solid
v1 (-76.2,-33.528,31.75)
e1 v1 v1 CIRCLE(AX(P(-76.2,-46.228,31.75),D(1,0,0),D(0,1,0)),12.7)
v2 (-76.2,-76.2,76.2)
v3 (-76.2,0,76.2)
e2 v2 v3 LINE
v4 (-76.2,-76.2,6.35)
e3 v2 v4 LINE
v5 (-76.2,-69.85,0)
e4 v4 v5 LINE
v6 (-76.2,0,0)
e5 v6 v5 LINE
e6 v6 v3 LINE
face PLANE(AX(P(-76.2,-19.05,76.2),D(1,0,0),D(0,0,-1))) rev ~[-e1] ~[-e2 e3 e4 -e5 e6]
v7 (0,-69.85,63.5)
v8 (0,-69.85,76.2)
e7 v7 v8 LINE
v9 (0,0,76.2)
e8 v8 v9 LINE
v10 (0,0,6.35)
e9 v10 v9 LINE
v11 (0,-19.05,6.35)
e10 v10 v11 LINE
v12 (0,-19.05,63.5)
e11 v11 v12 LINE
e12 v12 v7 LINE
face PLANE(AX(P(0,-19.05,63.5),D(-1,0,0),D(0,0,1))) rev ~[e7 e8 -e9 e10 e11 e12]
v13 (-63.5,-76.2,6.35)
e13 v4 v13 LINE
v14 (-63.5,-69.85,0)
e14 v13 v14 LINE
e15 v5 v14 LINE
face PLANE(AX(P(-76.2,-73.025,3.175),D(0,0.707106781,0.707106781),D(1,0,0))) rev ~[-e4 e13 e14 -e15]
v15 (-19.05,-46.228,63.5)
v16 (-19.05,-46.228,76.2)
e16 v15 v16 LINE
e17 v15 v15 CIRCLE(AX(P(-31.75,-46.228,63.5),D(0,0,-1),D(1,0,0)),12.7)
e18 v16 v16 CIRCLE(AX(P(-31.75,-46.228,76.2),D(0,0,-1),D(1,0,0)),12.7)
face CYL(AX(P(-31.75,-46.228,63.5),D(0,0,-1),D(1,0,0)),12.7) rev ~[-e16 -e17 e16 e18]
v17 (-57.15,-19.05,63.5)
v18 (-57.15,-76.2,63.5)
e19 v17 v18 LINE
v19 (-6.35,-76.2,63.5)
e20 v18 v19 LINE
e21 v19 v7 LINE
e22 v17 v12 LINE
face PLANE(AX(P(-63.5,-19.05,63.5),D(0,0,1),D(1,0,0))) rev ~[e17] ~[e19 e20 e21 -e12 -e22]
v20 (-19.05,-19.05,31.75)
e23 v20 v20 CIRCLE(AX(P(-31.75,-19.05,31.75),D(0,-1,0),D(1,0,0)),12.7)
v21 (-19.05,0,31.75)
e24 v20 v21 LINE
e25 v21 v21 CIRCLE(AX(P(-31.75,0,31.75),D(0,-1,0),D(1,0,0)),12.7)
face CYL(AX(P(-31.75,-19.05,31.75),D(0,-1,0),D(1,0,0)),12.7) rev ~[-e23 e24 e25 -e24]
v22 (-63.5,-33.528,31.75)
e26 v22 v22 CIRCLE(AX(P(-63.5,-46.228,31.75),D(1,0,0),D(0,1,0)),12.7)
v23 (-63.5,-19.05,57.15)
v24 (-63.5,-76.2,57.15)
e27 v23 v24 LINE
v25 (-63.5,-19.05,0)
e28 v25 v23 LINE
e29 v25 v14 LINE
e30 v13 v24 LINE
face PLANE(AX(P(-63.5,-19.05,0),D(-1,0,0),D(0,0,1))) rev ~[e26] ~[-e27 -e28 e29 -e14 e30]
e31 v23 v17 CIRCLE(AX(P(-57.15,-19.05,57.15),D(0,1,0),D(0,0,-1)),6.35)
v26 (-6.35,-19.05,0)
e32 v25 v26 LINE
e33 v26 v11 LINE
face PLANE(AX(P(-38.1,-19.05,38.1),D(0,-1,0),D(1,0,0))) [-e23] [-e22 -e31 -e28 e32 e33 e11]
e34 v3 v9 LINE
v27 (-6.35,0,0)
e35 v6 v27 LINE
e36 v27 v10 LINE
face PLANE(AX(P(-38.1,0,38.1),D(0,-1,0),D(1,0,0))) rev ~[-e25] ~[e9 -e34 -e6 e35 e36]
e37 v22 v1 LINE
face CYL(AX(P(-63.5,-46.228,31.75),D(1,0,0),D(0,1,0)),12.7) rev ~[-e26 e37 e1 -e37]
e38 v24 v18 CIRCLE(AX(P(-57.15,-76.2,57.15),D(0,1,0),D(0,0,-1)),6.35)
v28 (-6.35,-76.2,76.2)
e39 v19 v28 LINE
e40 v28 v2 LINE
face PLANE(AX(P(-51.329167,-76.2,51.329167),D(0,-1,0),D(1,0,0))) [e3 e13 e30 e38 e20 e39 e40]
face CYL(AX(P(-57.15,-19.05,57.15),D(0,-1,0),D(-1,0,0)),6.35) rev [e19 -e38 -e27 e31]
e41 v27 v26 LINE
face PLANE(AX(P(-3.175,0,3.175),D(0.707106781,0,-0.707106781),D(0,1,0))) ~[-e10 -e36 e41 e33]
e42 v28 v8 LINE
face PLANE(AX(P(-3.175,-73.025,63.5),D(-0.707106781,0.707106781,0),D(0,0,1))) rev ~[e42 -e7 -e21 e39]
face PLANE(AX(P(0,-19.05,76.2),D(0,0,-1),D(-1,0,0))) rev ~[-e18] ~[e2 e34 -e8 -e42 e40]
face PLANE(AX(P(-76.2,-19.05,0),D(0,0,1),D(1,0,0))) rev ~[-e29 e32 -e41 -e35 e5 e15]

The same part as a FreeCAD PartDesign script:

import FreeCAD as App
import Part
import Sketcher
from FreeCAD import Vector
Q = App.Units.Quantity


def edges_at(feature, points):
    """Names of the edges that pass closest to the given points."""
    edges = feature.Shape.Edges
    near = lambda p: min(range(len(edges)), key=lambda i: edges[i].distToShape(Part.Vertex(*p))[0])
    return sorted({f"Edge{near(p) + 1}" for p in points})

doc = App.newDocument("Part")
body = doc.addObject("PartDesign::Body", "Body")

sketch1 = body.newObject("Sketcher::SketchObject", "Sketch")
sketch1.AttachmentSupport = (doc.getObject("XZ_Plane"), [""])
sketch1.MapMode = "FlatFace"
sketch1.addGeometry(Part.LineSegment(Vector(-76.2, 76.2, 0), Vector(-76.2, 0, 0)), False)
sketch1.addGeometry(Part.LineSegment(Vector(-76.2, 0, 0), Vector(0, 0, 0)), False)
sketch1.addGeometry(Part.LineSegment(Vector(0, 0, 0), Vector(0, 76.2, 0)), False)
sketch1.addGeometry(Part.LineSegment(Vector(0, 76.2, 0), Vector(-76.2, 76.2, 0)), False)
sketch1.addConstraint(Sketcher.Constraint("Coincident", 0, 2, 1, 1))
sketch1.addConstraint(Sketcher.Constraint("Coincident", 1, 2, 2, 1))
sketch1.addConstraint(Sketcher.Constraint("Coincident", 2, 2, 3, 1))
sketch1.addConstraint(Sketcher.Constraint("Coincident", 3, 2, 0, 1))
sketch1.addConstraint(Sketcher.Constraint("Vertical", 0))
sketch1.addConstraint(Sketcher.Constraint("Horizontal", 1))
sketch1.addConstraint(Sketcher.Constraint("Vertical", 2))
sketch1.addConstraint(Sketcher.Constraint("Horizontal", 3))
sketch1.addConstraint(Sketcher.Constraint("Coincident", 1, 2, -1, 1))
sketch1.addConstraint(Sketcher.Constraint("Equal", 3, 0))
sketch1.addConstraint(Sketcher.Constraint("DistanceX", 1, 1, 1, 2, Q("3 in")))
pad1 = body.newObject("PartDesign::Pad", "Pad")
pad1.Profile = sketch1
pad1.Length = Q("0.75 in")

sketch2 = body.newObject("Sketcher::SketchObject", "Sketch001")
sketch2.AttachmentSupport = (doc.getObject("XZ_Plane"), [""])
sketch2.MapMode = "FlatFace"
sketch2.AttachmentOffset = App.Placement(Vector(0, 0, 0.75 * 25.4), App.Rotation())
sketch2.addGeometry(Part.LineSegment(Vector(-76.2, 76.2, 0), Vector(-76.2, 0, 0)), False)
sketch2.addGeometry(Part.LineSegment(Vector(-76.2, 0, 0), Vector(-63.5, 0, 0)), False)
sketch2.addGeometry(Part.LineSegment(Vector(-63.5, 0, 0), Vector(-63.5, 63.5, 0)), False)
sketch2.addGeometry(Part.LineSegment(Vector(-63.5, 63.5, 0), Vector(0, 63.5, 0)), False)
sketch2.addGeometry(Part.LineSegment(Vector(0, 63.5, 0), Vector(0, 76.2, 0)), False)
sketch2.addGeometry(Part.LineSegment(Vector(0, 76.2, 0), Vector(-76.2, 76.2, 0)), False)
sketch2.addConstraint(Sketcher.Constraint("Coincident", 0, 2, 1, 1))
sketch2.addConstraint(Sketcher.Constraint("Coincident", 1, 2, 2, 1))
sketch2.addConstraint(Sketcher.Constraint("Coincident", 2, 2, 3, 1))
sketch2.addConstraint(Sketcher.Constraint("Coincident", 3, 2, 4, 1))
sketch2.addConstraint(Sketcher.Constraint("Coincident", 4, 2, 5, 1))
sketch2.addConstraint(Sketcher.Constraint("Coincident", 5, 2, 0, 1))
sketch2.addConstraint(Sketcher.Constraint("Vertical", 0))
sketch2.addConstraint(Sketcher.Constraint("Horizontal", 1))
sketch2.addConstraint(Sketcher.Constraint("Vertical", 2))
sketch2.addConstraint(Sketcher.Constraint("Horizontal", 3))
sketch2.addConstraint(Sketcher.Constraint("Vertical", 4))
sketch2.addConstraint(Sketcher.Constraint("Horizontal", 5))
sketch2.addConstraint(Sketcher.Constraint("PointOnObject", 0, 2, -1))
sketch2.addConstraint(Sketcher.Constraint("PointOnObject", 3, 2, -2))
sketch2.addConstraint(Sketcher.Constraint("Equal", 5, 0))
sketch2.addConstraint(Sketcher.Constraint("Equal", 3, 2))
sketch2.addConstraint(Sketcher.Constraint("DistanceX", 5, 2, 5, 1, Q("3 in")))
sketch2.addConstraint(Sketcher.Constraint("DistanceX", 1, 1, 1, 2, Q("0.5 in")))
pad2 = body.newObject("PartDesign::Pad", "Pad001")
pad2.Profile = sketch2
pad2.Length = Q("2.25 in")

sketch3 = body.newObject("Sketcher::SketchObject", "Sketch002")
sketch3.AttachmentSupport = (doc.getObject("XY_Plane"), [""])
sketch3.MapMode = "FlatFace"
sketch3.AttachmentOffset = App.Placement(Vector(0, 0, 2.5 * 25.4), App.Rotation())
sketch3.addGeometry(Part.Circle(Vector(-31.75, -46.228, 0), Vector(0, 0, 1), 12.7), False)
sketch3.addConstraint(Sketcher.Constraint("Diameter", 0, Q("1 in")))
sketch3.addConstraint(Sketcher.Constraint("DistanceX", 0, 3, -1, 1, Q("1.25 in")))
sketch3.addConstraint(Sketcher.Constraint("DistanceY", 0, 3, -1, 1, Q("1.82 in")))
pocket1 = body.newObject("PartDesign::Pocket", "Pocket")
pocket1.Profile = sketch3
pocket1.Length = Q("0.5 in")
pocket1.Reversed = True

sketch4 = body.newObject("Sketcher::SketchObject", "Sketch003")
sketch4.AttachmentSupport = (doc.getObject("XZ_Plane"), [""])
sketch4.MapMode = "FlatFace"
sketch4.AttachmentOffset = App.Placement(Vector(0, 0, 0.75 * 25.4), App.Rotation())
sketch4.addGeometry(Part.Circle(Vector(-31.75, 31.75, 0), Vector(0, 0, 1), 12.7), False)
sketch4.addConstraint(Sketcher.Constraint("Diameter", 0, Q("1 in")))
sketch4.addConstraint(Sketcher.Constraint("DistanceX", 0, 3, -1, 1, Q("1.25 in")))
sketch4.addConstraint(Sketcher.Constraint("DistanceY", -1, 1, 0, 3, Q("1.25 in")))
pocket2 = body.newObject("PartDesign::Pocket", "Pocket001")
pocket2.Profile = sketch4
pocket2.Length = Q("0.75 in")
doc.recompute()

fillet = body.newObject("PartDesign::Fillet", "Fillet")
fillet.Base = (pocket2, edges_at(pocket2, [(-63.5, -47.625, 63.5)]))
fillet.Radius = Q("0.25 in")
doc.recompute()

chamfer = body.newObject("PartDesign::Chamfer", "Chamfer")
chamfer.Base = (fillet, edges_at(fillet, [(0, -9.525, 0), (-69.85, -76.2, 0), (0, -76.2, 69.85)]))
chamfer.Size = Q("0.25 in")

sketch5 = body.newObject("Sketcher::SketchObject", "Sketch004")
sketch5.AttachmentSupport = (doc.getObject("YZ_Plane"), [""])
sketch5.MapMode = "FlatFace"
sketch5.AttachmentOffset = App.Placement(Vector(0, 0, -2.5 * 25.4), App.Rotation())
sketch5.addGeometry(Part.Circle(Vector(-46.228, 31.75, 0), Vector(0, 0, 1), 12.7), False)
sketch5.addConstraint(Sketcher.Constraint("Diameter", 0, Q("1 in")))
sketch5.addConstraint(Sketcher.Constraint("DistanceX", 0, 3, -1, 1, Q("1.82 in")))
sketch5.addConstraint(Sketcher.Constraint("DistanceY", -1, 1, 0, 3, Q("1.25 in")))
pocket3 = body.newObject("PartDesign::Pocket", "Pocket002")
pocket3.Profile = sketch5
pocket3.Length = Q("0.5 in")

doc.recompute()
